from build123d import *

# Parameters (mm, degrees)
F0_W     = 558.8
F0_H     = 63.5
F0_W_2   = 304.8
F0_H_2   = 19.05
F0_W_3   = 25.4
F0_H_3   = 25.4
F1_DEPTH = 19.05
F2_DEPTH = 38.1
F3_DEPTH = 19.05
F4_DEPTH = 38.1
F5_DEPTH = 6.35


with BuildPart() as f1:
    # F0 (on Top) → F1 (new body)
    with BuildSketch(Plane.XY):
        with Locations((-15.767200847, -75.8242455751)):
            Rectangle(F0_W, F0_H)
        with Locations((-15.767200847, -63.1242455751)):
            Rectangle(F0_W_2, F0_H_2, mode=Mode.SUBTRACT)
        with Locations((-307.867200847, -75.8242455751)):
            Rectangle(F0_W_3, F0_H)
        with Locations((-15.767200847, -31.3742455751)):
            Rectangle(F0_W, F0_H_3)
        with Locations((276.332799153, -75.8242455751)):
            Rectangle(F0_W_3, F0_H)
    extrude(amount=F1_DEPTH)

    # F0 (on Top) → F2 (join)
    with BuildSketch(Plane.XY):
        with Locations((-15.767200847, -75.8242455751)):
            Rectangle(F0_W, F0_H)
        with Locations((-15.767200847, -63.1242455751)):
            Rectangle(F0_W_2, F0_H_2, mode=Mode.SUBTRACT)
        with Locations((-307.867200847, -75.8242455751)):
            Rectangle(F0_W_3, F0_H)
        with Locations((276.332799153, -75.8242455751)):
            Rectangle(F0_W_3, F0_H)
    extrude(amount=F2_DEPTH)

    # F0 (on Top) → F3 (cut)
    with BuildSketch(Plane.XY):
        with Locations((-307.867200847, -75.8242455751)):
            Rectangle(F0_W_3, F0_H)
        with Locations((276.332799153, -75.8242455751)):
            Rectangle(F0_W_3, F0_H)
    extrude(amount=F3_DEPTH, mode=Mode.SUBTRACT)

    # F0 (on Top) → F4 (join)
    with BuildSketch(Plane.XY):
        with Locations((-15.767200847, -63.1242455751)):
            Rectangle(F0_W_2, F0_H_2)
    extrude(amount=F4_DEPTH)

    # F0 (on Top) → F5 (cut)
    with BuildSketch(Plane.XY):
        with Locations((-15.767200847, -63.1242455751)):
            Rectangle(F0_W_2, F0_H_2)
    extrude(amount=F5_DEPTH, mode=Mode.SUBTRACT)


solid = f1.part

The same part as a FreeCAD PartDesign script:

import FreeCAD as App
import Part
import Sketcher
from FreeCAD import Vector
Q = App.Units.Quantity


def add_polygon(sketch, points):
    """Adds a closed chain of lines whose ends are joined by coincident constraints."""
    first, n = sketch.GeometryCount, len(points)
    for a, b in zip(points, points[1:] + points[:1]):
        sketch.addGeometry(Part.LineSegment(App.Vector(*a, 0), App.Vector(*b, 0)), False)
    for i in range(n):
        sketch.addConstraint(Sketcher.Constraint("Coincident", first + i, 2, first + (i + 1) % n, 1))

doc = App.newDocument("Part")
body = doc.addObject("PartDesign::Body", "Body")

# Sketch on XY plane
sketch1 = body.newObject("Sketcher::SketchObject", "Sketch")
sketch1.AttachmentSupport = (doc.getObject("XY_Plane"), [""])
sketch1.MapMode = "FlatFace"
add_polygon(sketch1, [(263.632799, -44.074246), (263.632799, -18.674246), (-295.167201, -18.674246), (-295.167201, -44.074246), (-320.567201, -44.074246), (-320.567201, -107.574246), (289.032799, -107.574246), (289.032799, -44.074246)])  # lines 0-7
add_polygon(sketch1, [(136.632799, -72.649246), (-168.167201, -72.649246), (-168.167201, -53.599246), (136.632799, -53.599246)])  # lines 8-11
sketch1.addConstraint([
    Sketcher.Constraint("Vertical", 0),
    Sketcher.Constraint("Horizontal", 1),
    Sketcher.Constraint("Vertical", 2),
    Sketcher.Constraint("Horizontal", 3),
    Sketcher.Constraint("Vertical", 4),
    Sketcher.Constraint("Horizontal", 5),
    Sketcher.Constraint("Vertical", 6),
    Sketcher.Constraint("Horizontal", 7),
    Sketcher.Constraint("Horizontal", 8),
    Sketcher.Constraint("Vertical", 9),
    Sketcher.Constraint("Horizontal", 10),
    Sketcher.Constraint("Vertical", 11),
    Sketcher.Constraint("Horizontal", 3, 2, 6, 2),
    Sketcher.Constraint("Equal", 3, 7),
    Sketcher.Constraint("Equal", 7, 0),
    Sketcher.Constraint("DistanceX", 1, 2, 1, 1, Q("22 in")),
    Sketcher.Constraint("DistanceX", 3, 2, 3, 1, Q("1 in")),
    Sketcher.Constraint("DistanceX", 8, 2, 8, 1, Q("12 in")),
    Sketcher.Constraint("DistanceY", 4, 2, 4, 1, Q("2.5 in")),
    Sketcher.Constraint("DistanceX", 2, 2, 8, 2, Q("5 in")),
    Sketcher.Constraint("DistanceY", 9, 1, 9, 2, Q("0.75 in")),
    Sketcher.Constraint("DistanceY", 8, 2, 2, 2, Q("1.125 in")),
    Sketcher.Constraint("DistanceX", -1, 1, 0, 2, Q("263.632799 mm")),
    Sketcher.Constraint("DistanceY", 0, 2, -1, 1, Q("18.674246 mm")),
])
pad1 = body.newObject("PartDesign::Pad", "Pad")
pad1.Profile = sketch1
pad1.Length = Q("0.75 in")

# Sketch on XY plane
sketch2 = body.newObject("Sketcher::SketchObject", "Sketch001")
sketch2.AttachmentSupport = (doc.getObject("XY_Plane"), [""])
sketch2.MapMode = "FlatFace"
add_polygon(sketch2, [(-320.567201, -44.074246), (-320.567201, -107.574246), (289.032799, -107.574246), (289.032799, -44.074246)])  # lines 0-3
add_polygon(sketch2, [(136.632799, -72.649246), (-168.167201, -72.649246), (-168.167201, -53.599246), (136.632799, -53.599246)])  # lines 4-7
sketch2.addConstraint([
    Sketcher.Constraint("Vertical", 0),
    Sketcher.Constraint("Horizontal", 1),
    Sketcher.Constraint("Vertical", 2),
    Sketcher.Constraint("Horizontal", 3),
    Sketcher.Constraint("Horizontal", 4),
    Sketcher.Constraint("Vertical", 5),
    Sketcher.Constraint("Horizontal", 6),
    Sketcher.Constraint("Vertical", 7),
    Sketcher.Constraint("DistanceX", 1, 1, 1, 2, Q("24 in")),
    Sketcher.Constraint("DistanceX", 4, 2, 4, 1, Q("12 in")),
    Sketcher.Constraint("DistanceY", 0, 2, 0, 1, Q("2.5 in")),
    Sketcher.Constraint("DistanceX", 3, 2, 4, 2, Q("6 in")),
    Sketcher.Constraint("DistanceY", 5, 1, 5, 2, Q("0.75 in")),
    Sketcher.Constraint("DistanceY", 4, 2, 3, 2, Q("1.125 in")),
    Sketcher.Constraint("DistanceX", 0, 2, -1, 1, Q("320.567201 mm")),
    Sketcher.Constraint("DistanceY", 0, 2, -1, 1, Q("107.574246 mm")),
])
pad2 = body.newObject("PartDesign::Pad", "Pad001")
pad2.Profile = sketch2
pad2.Length = Q("1.5 in")

# Sketch on XY plane
sketch3 = body.newObject("Sketcher::SketchObject", "Sketch002")
sketch3.AttachmentSupport = (doc.getObject("XY_Plane"), [""])
sketch3.MapMode = "FlatFace"
add_polygon(sketch3, [(-320.567201, -44.074246), (-320.567201, -107.574246), (-295.167201, -107.574246), (-295.167201, -44.074246)])  # lines 0-3
add_polygon(sketch3, [(263.632799, -44.074246), (263.632799, -107.574246), (289.032799, -107.574246), (289.032799, -44.074246)])  # lines 4-7
sketch3.addConstraint([
    Sketcher.Constraint("Vertical", 0),
    Sketcher.Constraint("Horizontal", 1),
    Sketcher.Constraint("Vertical", 2),
    Sketcher.Constraint("Horizontal", 3),
    Sketcher.Constraint("Vertical", 4),
    Sketcher.Constraint("Horizontal", 5),
    Sketcher.Constraint("Vertical", 6),
    Sketcher.Constraint("Horizontal", 7),
    Sketcher.Constraint("Horizontal", 1, 2, 4, 2),
    Sketcher.Constraint("Horizontal", 3, 2, 6, 2),
    Sketcher.Constraint("Equal", 3, 5),
    Sketcher.Constraint("DistanceX", 1, 1, 1, 2, Q("1 in")),
    Sketcher.Constraint("DistanceY", 0, 2, 0, 1, Q("2.5 in")),
    Sketcher.Constraint("DistanceX", 1, 2, 4, 2, Q("22 in")),
    Sketcher.Constraint("DistanceX", 0, 2, -1, 1, Q("320.567201 mm")),
    Sketcher.Constraint("DistanceY", 0, 2, -1, 1, Q("107.574246 mm")),
])
pocket1 = body.newObject("PartDesign::Pocket", "Pocket")
pocket1.Profile = sketch3
pocket1.Length = Q("0.75 in")
pocket1.Reversed = True

# Sketch on XY plane
sketch4 = body.newObject("Sketcher::SketchObject", "Sketch003")
sketch4.AttachmentSupport = (doc.getObject("XY_Plane"), [""])
sketch4.MapMode = "FlatFace"
add_polygon(sketch4, [(-168.167201, -53.599246), (-168.167201, -72.649246), (136.632799, -72.649246), (136.632799, -53.599246)])  # lines 0-3
sketch4.addConstraint([
    Sketcher.Constraint("Vertical", 0),
    Sketcher.Constraint("Horizontal", 1),
    Sketcher.Constraint("Vertical", 2),
    Sketcher.Constraint("Horizontal", 3),
    Sketcher.Constraint("DistanceX", 1, 1, 1, 2, Q("12 in")),
    Sketcher.Constraint("DistanceY", 0, 2, 0, 1, Q("0.75 in")),
    Sketcher.Constraint("DistanceX", 0, 2, -1, 1, Q("168.167201 mm")),
    Sketcher.Constraint("DistanceY", 0, 2, -1, 1, Q("72.649246 mm")),
])
pad3 = body.newObject("PartDesign::Pad", "Pad002")
pad3.Profile = sketch4
pad3.Length = Q("1.5 in")

# Sketch on XY plane
sketch5 = body.newObject("Sketcher::SketchObject", "Sketch004")
sketch5.AttachmentSupport = (doc.getObject("XY_Plane"), [""])
sketch5.MapMode = "FlatFace"
add_polygon(sketch5, [(-168.167201, -53.599246), (-168.167201, -72.649246), (136.632799, -72.649246), (136.632799, -53.599246)])  # lines 0-3
sketch5.addConstraint([
    Sketcher.Constraint("Vertical", 0),
    Sketcher.Constraint("Horizontal", 1),
    Sketcher.Constraint("Vertical", 2),
    Sketcher.Constraint("Horizontal", 3),
    Sketcher.Constraint("DistanceX", 1, 1, 1, 2, Q("12 in")),
    Sketcher.Constraint("DistanceY", 0, 2, 0, 1, Q("0.75 in")),
    Sketcher.Constraint("DistanceX", 0, 2, -1, 1, Q("168.167201 mm")),
    Sketcher.Constraint("DistanceY", 0, 2, -1, 1, Q("72.649246 mm")),
])
pocket2 = body.newObject("PartDesign::Pocket", "Pocket001")
pocket2.Profile = sketch5
pocket2.Length = Q("0.25 in")
pocket2.Reversed = True

doc.recompute()
